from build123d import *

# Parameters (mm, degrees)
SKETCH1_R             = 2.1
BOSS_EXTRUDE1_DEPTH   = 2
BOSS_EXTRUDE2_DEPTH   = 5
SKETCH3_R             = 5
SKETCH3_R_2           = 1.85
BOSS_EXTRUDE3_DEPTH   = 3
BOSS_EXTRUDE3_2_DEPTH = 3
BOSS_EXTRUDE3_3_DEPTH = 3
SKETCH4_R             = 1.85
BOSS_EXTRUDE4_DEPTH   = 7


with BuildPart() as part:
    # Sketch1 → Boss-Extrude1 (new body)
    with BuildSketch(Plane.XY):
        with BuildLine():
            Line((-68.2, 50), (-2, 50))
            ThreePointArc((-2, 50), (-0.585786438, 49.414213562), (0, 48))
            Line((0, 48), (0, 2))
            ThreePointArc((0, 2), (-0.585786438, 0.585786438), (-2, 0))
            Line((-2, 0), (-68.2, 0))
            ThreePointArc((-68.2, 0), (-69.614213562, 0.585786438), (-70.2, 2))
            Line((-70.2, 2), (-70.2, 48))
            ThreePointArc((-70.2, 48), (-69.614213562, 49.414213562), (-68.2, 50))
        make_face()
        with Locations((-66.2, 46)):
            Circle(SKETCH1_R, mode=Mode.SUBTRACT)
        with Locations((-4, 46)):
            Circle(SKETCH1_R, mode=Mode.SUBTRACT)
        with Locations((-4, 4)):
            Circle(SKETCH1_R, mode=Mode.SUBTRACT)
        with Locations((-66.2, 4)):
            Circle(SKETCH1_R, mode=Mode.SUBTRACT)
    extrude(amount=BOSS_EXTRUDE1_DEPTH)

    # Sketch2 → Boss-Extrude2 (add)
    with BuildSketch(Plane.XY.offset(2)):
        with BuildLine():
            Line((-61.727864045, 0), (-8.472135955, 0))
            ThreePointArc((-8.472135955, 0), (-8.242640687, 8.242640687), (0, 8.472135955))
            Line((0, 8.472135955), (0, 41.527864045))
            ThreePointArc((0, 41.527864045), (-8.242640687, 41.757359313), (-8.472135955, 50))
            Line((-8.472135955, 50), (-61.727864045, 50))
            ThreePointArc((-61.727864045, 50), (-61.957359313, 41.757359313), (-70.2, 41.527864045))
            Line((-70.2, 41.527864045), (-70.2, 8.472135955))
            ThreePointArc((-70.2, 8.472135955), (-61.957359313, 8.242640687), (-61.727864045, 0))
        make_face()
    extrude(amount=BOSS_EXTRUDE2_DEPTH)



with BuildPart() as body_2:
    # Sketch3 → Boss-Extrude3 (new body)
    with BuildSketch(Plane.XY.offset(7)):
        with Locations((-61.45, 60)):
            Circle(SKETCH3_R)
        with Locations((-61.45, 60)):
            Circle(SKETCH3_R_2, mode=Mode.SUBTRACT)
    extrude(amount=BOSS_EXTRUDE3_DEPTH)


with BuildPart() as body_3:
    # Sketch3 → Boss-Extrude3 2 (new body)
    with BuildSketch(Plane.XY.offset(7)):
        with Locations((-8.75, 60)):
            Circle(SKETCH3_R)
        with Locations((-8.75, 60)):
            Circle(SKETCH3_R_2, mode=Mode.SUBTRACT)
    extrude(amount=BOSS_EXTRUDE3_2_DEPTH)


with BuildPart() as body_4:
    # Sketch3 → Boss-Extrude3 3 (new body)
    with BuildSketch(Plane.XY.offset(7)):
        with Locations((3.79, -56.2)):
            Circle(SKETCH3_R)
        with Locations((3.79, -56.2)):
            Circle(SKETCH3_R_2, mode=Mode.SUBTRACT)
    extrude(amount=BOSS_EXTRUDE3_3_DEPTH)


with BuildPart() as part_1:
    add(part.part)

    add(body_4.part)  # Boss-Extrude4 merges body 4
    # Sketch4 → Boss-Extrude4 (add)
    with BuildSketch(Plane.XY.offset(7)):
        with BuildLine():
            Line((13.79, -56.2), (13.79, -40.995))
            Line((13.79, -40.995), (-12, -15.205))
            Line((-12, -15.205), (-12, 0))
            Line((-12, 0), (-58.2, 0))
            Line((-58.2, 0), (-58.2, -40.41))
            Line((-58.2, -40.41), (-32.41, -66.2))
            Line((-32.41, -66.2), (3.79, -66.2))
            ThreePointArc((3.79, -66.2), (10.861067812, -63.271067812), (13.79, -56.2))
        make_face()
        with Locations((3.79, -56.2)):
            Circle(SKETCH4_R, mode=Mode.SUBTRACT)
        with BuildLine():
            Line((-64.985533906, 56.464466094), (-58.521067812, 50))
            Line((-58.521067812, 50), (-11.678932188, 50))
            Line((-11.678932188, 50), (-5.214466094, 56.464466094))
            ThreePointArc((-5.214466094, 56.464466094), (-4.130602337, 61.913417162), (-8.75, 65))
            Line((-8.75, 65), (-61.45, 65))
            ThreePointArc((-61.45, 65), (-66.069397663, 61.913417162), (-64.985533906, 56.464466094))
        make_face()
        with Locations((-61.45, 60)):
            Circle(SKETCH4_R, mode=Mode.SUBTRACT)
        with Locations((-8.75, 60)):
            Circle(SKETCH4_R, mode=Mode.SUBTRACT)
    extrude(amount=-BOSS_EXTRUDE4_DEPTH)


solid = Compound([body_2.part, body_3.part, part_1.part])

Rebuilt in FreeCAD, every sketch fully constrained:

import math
import FreeCAD as App
import Part
import Sketcher
from FreeCAD import Vector
Q = App.Units.Quantity

doc = App.newDocument("Part")
body = doc.addObject("PartDesign::Body", "Body")

sketch1 = body.newObject("Sketcher::SketchObject", "Sketch")
sketch1.AttachmentSupport = (doc.getObject("XY_Plane"), [""])
sketch1.MapMode = "FlatFace"
sketch1.addGeometry(Part.LineSegment(Vector(-2, 50, 0), Vector(-68.2, 50, 0)), False)
sketch1.addGeometry(Part.ArcOfCircle(Part.Circle(Vector(-68.2, 48, 0), Vector(0, 0, 1), 2), math.radians(90), math.radians(180)), False)
sketch1.addGeometry(Part.LineSegment(Vector(-70.2, 48, 0), Vector(-70.2, 2, 0)), False)
sketch1.addGeometry(Part.ArcOfCircle(Part.Circle(Vector(-68.2, 2, 0), Vector(0, 0, 1), 2), math.radians(-180), math.radians(-90)), False)
sketch1.addGeometry(Part.LineSegment(Vector(-68.2, 0, 0), Vector(-2, 0, 0)), False)
sketch1.addGeometry(Part.ArcOfCircle(Part.Circle(Vector(-2, 2, 0), Vector(0, 0, 1), 2), math.radians(-90), math.radians(0)), False)
sketch1.addGeometry(Part.LineSegment(Vector(0, 2, 0), Vector(0, 48, 0)), False)
sketch1.addGeometry(Part.ArcOfCircle(Part.Circle(Vector(-2, 48, 0), Vector(0, 0, 1), 2), math.radians(0), math.radians(90)), False)
sketch1.addGeometry(Part.Circle(Vector(-4, 4, 0), Vector(0, 0, 1), 2.1), False)
sketch1.addGeometry(Part.Circle(Vector(-66.2, 4, 0), Vector(0, 0, 1), 2.1), False)
sketch1.addGeometry(Part.Circle(Vector(-4, 46, 0), Vector(0, 0, 1), 2.1), False)
sketch1.addGeometry(Part.Circle(Vector(-66.2, 46, 0), Vector(0, 0, 1), 2.1), False)
sketch1.addConstraint(Sketcher.Constraint("Tangent", 0, 2, 1, 1))
sketch1.addConstraint(Sketcher.Constraint("Tangent", 1, 2, 2, 1))
sketch1.addConstraint(Sketcher.Constraint("Tangent", 2, 2, 3, 1))
sketch1.addConstraint(Sketcher.Constraint("Tangent", 3, 2, 4, 1))
sketch1.addConstraint(Sketcher.Constraint("Tangent", 4, 2, 5, 1))
sketch1.addConstraint(Sketcher.Constraint("Tangent", 5, 2, 6, 1))
sketch1.addConstraint(Sketcher.Constraint("Tangent", 6, 2, 7, 1))
sketch1.addConstraint(Sketcher.Constraint("Tangent", 7, 2, 0, 1))
sketch1.addConstraint(Sketcher.Constraint("Horizontal", 0))
sketch1.addConstraint(Sketcher.Constraint("Vertical", 2))
sketch1.addConstraint(Sketcher.Constraint("Horizontal", 4))
sketch1.addConstraint(Sketcher.Constraint("Vertical", 6))
sketch1.addConstraint(Sketcher.Constraint("Equal", 1, 3))
sketch1.addConstraint(Sketcher.Constraint("Equal", 3, 5))
sketch1.addConstraint(Sketcher.Constraint("Equal", 5, 7))
sketch1.addConstraint(Sketcher.Constraint("Equal", 8, 9))
sketch1.addConstraint(Sketcher.Constraint("Equal", 9, 10))
sketch1.addConstraint(Sketcher.Constraint("Equal", 10, 11))
sketch1.addConstraint(Sketcher.Constraint("PointOnObject", 3, 2, -1))
sketch1.addConstraint(Sketcher.Constraint("PointOnObject", 5, 2, -2))
sketch1.addConstraint(Sketcher.Constraint("Horizontal", 8, 3, 9, 3))
sketch1.addConstraint(Sketcher.Constraint("Horizontal", 10, 3, 11, 3))
sketch1.addConstraint(Sketcher.Constraint("Vertical", 8, 3, 10, 3))
sketch1.addConstraint(Sketcher.Constraint("Vertical", 9, 3, 11, 3))
sketch1.addConstraint(Sketcher.Constraint("Radius", 1, Q("2 mm")))
sketch1.addConstraint(Sketcher.Constraint("Diameter", 8, Q("4.2 mm")))
sketch1.addConstraint(Sketcher.Constraint("DistanceY", 2, 2, 2, 1, Q("46 mm")))
sketch1.addConstraint(Sketcher.Constraint("DistanceX", 0, 2, 0, 1, Q("66.2 mm")))
sketch1.addConstraint(Sketcher.Constraint("DistanceX", 8, 3, -1, 1, Q("4 mm")))
sketch1.addConstraint(Sketcher.Constraint("DistanceY", -1, 1, 8, 3, Q("4 mm")))
sketch1.addConstraint(Sketcher.Constraint("DistanceY", -1, 1, 10, 3, Q("46 mm")))
sketch1.addConstraint(Sketcher.Constraint("DistanceX", 3, 3, 9, 3, Q("2 mm")))
pad1 = body.newObject("PartDesign::Pad", "Pad")
pad1.Profile = sketch1
pad1.Length = 2

sketch2 = body.newObject("Sketcher::SketchObject", "Sketch001")
sketch2.AttachmentSupport = (doc.getObject("XY_Plane"), [""])
sketch2.MapMode = "FlatFace"
sketch2.AttachmentOffset = App.Placement(Vector(0, 0, 2), App.Rotation())
sketch2.addGeometry(Part.LineSegment(Vector(-61.727864, 0, 0), Vector(-8.472136, 0, 0)), False)
sketch2.addGeometry(Part.ArcOfCircle(Part.Circle(Vector(-4, 4, 0), Vector(0, 0, 1), 6), math.radians(48.189685), math.radians(221.810315)), False)
sketch2.addGeometry(Part.LineSegment(Vector(0, 8.472136, 0), Vector(0, 41.527864, 0)), False)
sketch2.addGeometry(Part.ArcOfCircle(Part.Circle(Vector(-4, 46, 0), Vector(0, 0, 1), 6), math.radians(138.189685), math.radians(311.810315)), False)
sketch2.addGeometry(Part.LineSegment(Vector(-8.472136, 50, 0), Vector(-61.727864, 50, 0)), False)
sketch2.addGeometry(Part.ArcOfCircle(Part.Circle(Vector(-66.2, 46, 0), Vector(0, 0, 1), 6), math.radians(-131.810315), math.radians(41.810315)), False)
sketch2.addGeometry(Part.LineSegment(Vector(-70.2, 41.527864, 0), Vector(-70.2, 8.472136, 0)), False)
sketch2.addGeometry(Part.ArcOfCircle(Part.Circle(Vector(-66.2, 4, 0), Vector(0, 0, 1), 6), math.radians(-41.810315), math.radians(131.810315)), False)
sketch2.addConstraint(Sketcher.Constraint("Coincident", 0, 2, 1, 2))
sketch2.addConstraint(Sketcher.Constraint("Coincident", 1, 1, 2, 1))
sketch2.addConstraint(Sketcher.Constraint("Coincident", 2, 2, 3, 2))
sketch2.addConstraint(Sketcher.Constraint("Coincident", 3, 1, 4, 1))
sketch2.addConstraint(Sketcher.Constraint("Coincident", 4, 2, 5, 2))
sketch2.addConstraint(Sketcher.Constraint("Coincident", 5, 1, 6, 1))
sketch2.addConstraint(Sketcher.Constraint("Coincident", 6, 2, 7, 2))
sketch2.addConstraint(Sketcher.Constraint("Coincident", 7, 1, 0, 1))
sketch2.addConstraint(Sketcher.Constraint("Horizontal", 0))
sketch2.addConstraint(Sketcher.Constraint("Vertical", 2))
sketch2.addConstraint(Sketcher.Constraint("Horizontal", 4))
sketch2.addConstraint(Sketcher.Constraint("Vertical", 6))
sketch2.addConstraint(Sketcher.Constraint("Equal", 1, 3))
sketch2.addConstraint(Sketcher.Constraint("Equal", 3, 5))
sketch2.addConstraint(Sketcher.Constraint("Equal", 5, 7))
sketch2.addConstraint(Sketcher.Constraint("PointOnObject", 0, 2, -1))
sketch2.addConstraint(Sketcher.Constraint("PointOnObject", 1, 1, -2))
sketch2.addConstraint(Sketcher.Constraint("Horizontal", 3, 3, 5, 3))
sketch2.addConstraint(Sketcher.Constraint("Horizontal", 1, 3, 7, 3))
sketch2.addConstraint(Sketcher.Constraint("Horizontal", 2, 2, 5, 1))
sketch2.addConstraint(Sketcher.Constraint("Horizontal", 1, 1, 6, 2))
sketch2.addConstraint(Sketcher.Constraint("Vertical", 1, 3, 3, 3))
sketch2.addConstraint(Sketcher.Constraint("Vertical", 0, 2, 3, 1))
sketch2.addConstraint(Sketcher.Constraint("Radius", 1, Q("6 mm")))
sketch2.addConstraint(Sketcher.Constraint("DistanceX", 1, 3, -1, 1, Q("4 mm")))
sketch2.addConstraint(Sketcher.Constraint("DistanceY", -1, 1, 1, 3, Q("4 mm")))
sketch2.addConstraint(Sketcher.Constraint("DistanceY", -1, 1, 3, 3, Q("46 mm")))
sketch2.addConstraint(Sketcher.Constraint("DistanceX", 5, 3, -1, 1, Q("66.2 mm")))
pad2 = body.newObject("PartDesign::Pad", "Pad001")
pad2.Profile = sketch2
pad2.Length = 5
body2 = doc.addObject("PartDesign::Body", "Body001")

sketch3 = body2.newObject("Sketcher::SketchObject", "Sketch002")
sketch3.AttachmentSupport = (doc.getObject("XY_Plane001"), [""])
sketch3.MapMode = "FlatFace"
sketch3.AttachmentOffset = App.Placement(Vector(0, 0, 7), App.Rotation())
sketch3.addGeometry(Part.Circle(Vector(-61.45, 60, 0), Vector(0, 0, 1), 5), False)
sketch3.addGeometry(Part.Circle(Vector(-61.45, 60, 0), Vector(0, 0, 1), 1.85), False)
sketch3.addConstraint(Sketcher.Constraint("Coincident", 1, 3, 0, 3))
sketch3.addConstraint(Sketcher.Constraint("Diameter", 0, Q("10 mm")))
sketch3.addConstraint(Sketcher.Constraint("Diameter", 1, Q("3.7 mm")))
sketch3.addConstraint(Sketcher.Constraint("DistanceY", -1, 1, 0, 3, Q("60 mm")))
sketch3.addConstraint(Sketcher.Constraint("DistanceX", 0, 3, -1, 1, Q("61.45 mm")))
pad3 = body2.newObject("PartDesign::Pad", "Pad002")
pad3.Profile = sketch3
pad3.Length = 3
body3 = doc.addObject("PartDesign::Body", "Body002")

sketch4 = body3.newObject("Sketcher::SketchObject", "Sketch003")
sketch4.AttachmentSupport = (doc.getObject("XY_Plane002"), [""])
sketch4.MapMode = "FlatFace"
sketch4.AttachmentOffset = App.Placement(Vector(0, 0, 7), App.Rotation())
sketch4.addGeometry(Part.Circle(Vector(-8.75, 60, 0), Vector(0, 0, 1), 5), False)
sketch4.addGeometry(Part.Circle(Vector(-8.75, 60, 0), Vector(0, 0, 1), 1.85), False)
sketch4.addConstraint(Sketcher.Constraint("Coincident", 1, 3, 0, 3))
sketch4.addConstraint(Sketcher.Constraint("Diameter", 0, Q("10 mm")))
sketch4.addConstraint(Sketcher.Constraint("Diameter", 1, Q("3.7 mm")))
sketch4.addConstraint(Sketcher.Constraint("DistanceY", -1, 1, 0, 3, Q("60 mm")))
sketch4.addConstraint(Sketcher.Constraint("DistanceX", 0, 3, -1, 1, Q("8.75 mm")))
pad4 = body3.newObject("PartDesign::Pad", "Pad003")
pad4.Profile = sketch4
pad4.Length = 3
body4 = doc.addObject("PartDesign::Body", "Body003")

sketch5 = body4.newObject("Sketcher::SketchObject", "Sketch004")
sketch5.AttachmentSupport = (doc.getObject("XY_Plane003"), [""])
sketch5.MapMode = "FlatFace"
sketch5.AttachmentOffset = App.Placement(Vector(0, 0, 7), App.Rotation())
sketch5.addGeometry(Part.Circle(Vector(3.79, -56.2, 0), Vector(0, 0, 1), 5), False)
sketch5.addGeometry(Part.Circle(Vector(3.79, -56.2, 0), Vector(0, 0, 1), 1.85), False)
sketch5.addConstraint(Sketcher.Constraint("Coincident", 1, 3, 0, 3))
sketch5.addConstraint(Sketcher.Constraint("Diameter", 0, Q("10 mm")))
sketch5.addConstraint(Sketcher.Constraint("Diameter", 1, Q("3.7 mm")))
sketch5.addConstraint(Sketcher.Constraint("DistanceY", 0, 3, -1, 1, Q("56.2 mm")))
sketch5.addConstraint(Sketcher.Constraint("DistanceX", -1, 1, 0, 3, Q("3.79 mm")))
pad5 = body4.newObject("PartDesign::Pad", "Pad004")
pad5.Profile = sketch5
pad5.Length = 3
body.AllowCompound = True
doc.recompute()

boolean = body.newObject("PartDesign::Boolean", "Boolean")
boolean.Type = "Fuse"
boolean.addObjects([body4])

sketch6 = body.newObject("Sketcher::SketchObject", "Sketch005")
sketch6.AttachmentSupport = (doc.getObject("XY_Plane"), [""])
sketch6.MapMode = "FlatFace"
sketch6.AttachmentOffset = App.Placement(Vector(0, 0, 7), App.Rotation())
sketch6.addGeometry(Part.LineSegment(Vector(13.79, -56.2, 0), Vector(13.79, -40.995, 0)), False)
sketch6.addGeometry(Part.LineSegment(Vector(13.79, -40.995, 0), Vector(-12, -15.205, 0)), False)
sketch6.addGeometry(Part.LineSegment(Vector(-12, -15.205, 0), Vector(-12, 0, 0)), False)
sketch6.addGeometry(Part.LineSegment(Vector(-12, 0, 0), Vector(-58.2, 0, 0)), False)
sketch6.addGeometry(Part.LineSegment(Vector(-58.2, 0, 0), Vector(-58.2, -40.41, 0)), False)
sketch6.addGeometry(Part.LineSegment(Vector(-58.2, -40.41, 0), Vector(-32.41, -66.2, 0)), False)
sketch6.addGeometry(Part.LineSegment(Vector(-32.41, -66.2, 0), Vector(3.79, -66.2, 0)), False)
sketch6.addGeometry(Part.ArcOfCircle(Part.Circle(Vector(3.79, -56.2, 0), Vector(0, 0, 1), 10), math.radians(-90), math.radians(0)), False)
sketch6.addGeometry(Part.Circle(Vector(3.79, -56.2, 0), Vector(0, 0, 1), 1.85), False)
sketch6.addGeometry(Part.LineSegment(Vector(-64.985534, 56.464466, 0), Vector(-58.521068, 50, 0)), False)
sketch6.addGeometry(Part.LineSegment(Vector(-58.521068, 50, 0), Vector(-11.678932, 50, 0)), False)
sketch6.addGeometry(Part.LineSegment(Vector(-11.678932, 50, 0), Vector(-5.214466, 56.464466, 0)), False)
sketch6.addGeometry(Part.ArcOfCircle(Part.Circle(Vector(-8.75, 60, 0), Vector(0, 0, 1), 5), math.radians(-45), math.radians(90)), False)
sketch6.addGeometry(Part.LineSegment(Vector(-8.75, 65, 0), Vector(-61.45, 65, 0)), False)
sketch6.addGeometry(Part.ArcOfCircle(Part.Circle(Vector(-61.45, 60, 0), Vector(0, 0, 1), 5), math.radians(90), math.radians(225)), False)
sketch6.addGeometry(Part.Circle(Vector(-61.45, 60, 0), Vector(0, 0, 1), 1.85), False)
sketch6.addGeometry(Part.Circle(Vector(-8.75, 60, 0), Vector(0, 0, 1), 1.85), False)
sketch6.addConstraint(Sketcher.Constraint("Coincident", 0, 2, 1, 1))
sketch6.addConstraint(Sketcher.Constraint("Coincident", 1, 2, 2, 1))
sketch6.addConstraint(Sketcher.Constraint("Coincident", 2, 2, 3, 1))
sketch6.addConstraint(Sketcher.Constraint("Coincident", 3, 2, 4, 1))
sketch6.addConstraint(Sketcher.Constraint("Coincident", 4, 2, 5, 1))
sketch6.addConstraint(Sketcher.Constraint("Coincident", 5, 2, 6, 1))
sketch6.addConstraint(Sketcher.Constraint("Tangent", 6, 2, 7, 1))
sketch6.addConstraint(Sketcher.Constraint("Tangent", 7, 2, 0, 1))
sketch6.addConstraint(Sketcher.Constraint("Coincident", 9, 2, 10, 1))
sketch6.addConstraint(Sketcher.Constraint("Coincident", 10, 2, 11, 1))
sketch6.addConstraint(Sketcher.Constraint("Tangent", 11, 2, 12, 1))
sketch6.addConstraint(Sketcher.Constraint("Tangent", 12, 2, 13, 1))
sketch6.addConstraint(Sketcher.Constraint("Tangent", 13, 2, 14, 1))
sketch6.addConstraint(Sketcher.Constraint("Tangent", 14, 2, 9, 1))
sketch6.addConstraint(Sketcher.Constraint("Vertical", 0))
sketch6.addConstraint(Sketcher.Constraint("Vertical", 2))
sketch6.addConstraint(Sketcher.Constraint("Horizontal", 3))
sketch6.addConstraint(Sketcher.Constraint("Vertical", 4))
sketch6.addConstraint(Sketcher.Constraint("Horizontal", 6))
sketch6.addConstraint(Sketcher.Constraint("Horizontal", 10))
sketch6.addConstraint(Sketcher.Constraint("Horizontal", 13))
sketch6.addConstraint(Sketcher.Constraint("Coincident", 8, 3, 7, 3))
sketch6.addConstraint(Sketcher.Constraint("Coincident", 15, 3, 14, 3))
sketch6.addConstraint(Sketcher.Constraint("Coincident", 16, 3, 12, 3))
sketch6.addConstraint(Sketcher.Constraint("Equal", 12, 14))
sketch6.addConstraint(Sketcher.Constraint("Equal", 8, 15))
sketch6.addConstraint(Sketcher.Constraint("Equal", 15, 16))
sketch6.addConstraint(Sketcher.Constraint("PointOnObject", 2, 2, -1))
sketch6.addConstraint(Sketcher.Constraint("Parallel", 1, 5))
sketch6.addConstraint(Sketcher.Constraint("Parallel", 5, 9))
sketch6.addConstraint(Sketcher.Constraint("Perpendicular", 9, 11))
sketch6.addConstraint(Sketcher.Constraint("Horizontal", 11, 2, 14, 2))
sketch6.addConstraint(Sketcher.Constraint("Equal", 0, 2))
sketch6.addConstraint(Sketcher.Constraint("Equal", 1, 5))
sketch6.addConstraint(Sketcher.Constraint("Radius", 7, Q("10 mm")))
sketch6.addConstraint(Sketcher.Constraint("Radius", 12, Q("5 mm")))
sketch6.addConstraint(Sketcher.Constraint("Diameter", 8, Q("3.7 mm")))
sketch6.addConstraint(Sketcher.Constraint("DistanceX", 3, 2, 3, 1, Q("46.2 mm")))
sketch6.addConstraint(Sketcher.Constraint("DistanceX", 13, 2, 13, 1, Q("52.7 mm")))
sketch6.addConstraint(Sketcher.Constraint("DistanceY", -1, 1, 12, 3, Q("60 mm")))
sketch6.addConstraint(Sketcher.Constraint("DistanceX", 1, 2, -1, 1, Q("12 mm")))
sketch6.addConstraint(Sketcher.Constraint("DistanceY", -1, 1, 9, 2, Q("50 mm")))
sketch6.addConstraint(Sketcher.Constraint("DistanceY", 4, 2, 4, 1, Q("40.41 mm")))
sketch6.addConstraint(Sketcher.Constraint("DistanceY", 7, 3, -1, 1, Q("56.2 mm")))
sketch6.addConstraint(Sketcher.Constraint("DistanceX", 12, 3, -1, 1, Q("8.75 mm")))
pad6 = body.newObject("PartDesign::Pad", "Pad005")
pad6.Profile = sketch6
pad6.Length = 7
pad6.Reversed = True

doc.recompute()
